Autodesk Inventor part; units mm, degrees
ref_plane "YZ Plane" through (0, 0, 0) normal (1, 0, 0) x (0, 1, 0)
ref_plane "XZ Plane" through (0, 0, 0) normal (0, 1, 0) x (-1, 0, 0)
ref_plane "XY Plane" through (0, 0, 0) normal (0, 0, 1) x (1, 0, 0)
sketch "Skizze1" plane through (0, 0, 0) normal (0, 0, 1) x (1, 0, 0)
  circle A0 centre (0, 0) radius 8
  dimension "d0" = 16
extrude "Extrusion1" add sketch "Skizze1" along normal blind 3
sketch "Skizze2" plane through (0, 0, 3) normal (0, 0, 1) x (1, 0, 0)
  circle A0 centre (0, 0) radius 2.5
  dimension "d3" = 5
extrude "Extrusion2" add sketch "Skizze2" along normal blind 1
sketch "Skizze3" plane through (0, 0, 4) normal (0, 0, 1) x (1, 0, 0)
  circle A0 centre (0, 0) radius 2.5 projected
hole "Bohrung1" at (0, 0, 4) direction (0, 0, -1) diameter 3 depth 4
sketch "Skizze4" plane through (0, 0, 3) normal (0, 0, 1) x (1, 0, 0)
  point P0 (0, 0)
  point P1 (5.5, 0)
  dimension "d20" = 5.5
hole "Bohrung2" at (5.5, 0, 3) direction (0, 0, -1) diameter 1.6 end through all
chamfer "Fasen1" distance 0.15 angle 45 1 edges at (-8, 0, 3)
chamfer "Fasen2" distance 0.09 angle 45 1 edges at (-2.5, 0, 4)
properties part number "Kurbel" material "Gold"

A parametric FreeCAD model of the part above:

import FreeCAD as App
import Part
import Sketcher

V = App.Vector
Q = App.Units.Quantity


def edges_at(feature, points):
    """Names of the edges that pass closest to the given points."""
    edges = feature.Shape.Edges
    near = lambda p: min(range(len(edges)), key=lambda i: edges[i].distToShape(Part.Vertex(*p))[0])
    return sorted({f"Edge{near(p) + 1}" for p in points})

doc = App.newDocument("Part")
body = doc.addObject("PartDesign::Body", "Body")

# Sketch on XY plane
sketch1 = body.newObject("Sketcher::SketchObject", "Sketch")
sketch1.AttachmentSupport = (doc.getObject("XY_Plane"), [""])
sketch1.MapMode = "FlatFace"
sketch1.addGeometry(Part.Circle(V(0, 0, 0), V(0, 0, 1), 8), False)
sketch1.addConstraint([
    Sketcher.Constraint("Coincident", 0, 3, -1, 1),
    Sketcher.Constraint("Diameter", 0, Q("16 mm")),
])
pad1 = body.newObject("PartDesign::Pad", "Pad")
pad1.Profile = sketch1
pad1.Length = 3

# Sketch on XY plane
sketch2 = body.newObject("Sketcher::SketchObject", "Sketch001")
sketch2.AttachmentSupport = (doc.getObject("XY_Plane"), [""])
sketch2.MapMode = "FlatFace"
sketch2.AttachmentOffset = App.Placement(V(0, 0, 3), App.Rotation())
sketch2.addGeometry(Part.Circle(V(0, 0, 0), V(0, 0, 1), 2.5), False)
sketch2.addConstraint([
    Sketcher.Constraint("Coincident", 0, 3, -1, 1),
    Sketcher.Constraint("Diameter", 0, Q("5 mm")),
])
pad2 = body.newObject("PartDesign::Pad", "Pad001")
pad2.Profile = sketch2
pad2.Length = 1

# Sketch on XY plane
sketch3 = body.newObject("Sketcher::SketchObject", "Sketch002")
sketch3.AttachmentSupport = (doc.getObject("XY_Plane"), [""])
sketch3.MapMode = "FlatFace"
sketch3.AttachmentOffset = App.Placement(V(0, 0, 4), App.Rotation())
sketch3.addGeometry(Part.Circle(V(0, 0, 0), V(0, 0, 1), 1.5), False)
sketch3.addConstraint([
    Sketcher.Constraint("Coincident", 0, 3, -1, 1),
    Sketcher.Constraint("Diameter", 0, Q("3 mm")),
])
doc.recompute()
hole = body.newObject("PartDesign::Hole", "Hole")
hole.Profile = sketch3
hole.ThreadType = "None"
hole.Diameter = 3
hole.DepthType = "Dimension"
hole.Depth = 4
hole.DrillPoint = "Flat"

# Sketch on XY plane
sketch4 = body.newObject("Sketcher::SketchObject", "Sketch003")
sketch4.AttachmentSupport = (doc.getObject("XY_Plane"), [""])
sketch4.MapMode = "FlatFace"
sketch4.AttachmentOffset = App.Placement(V(0, 0, 3), App.Rotation())
sketch4.addGeometry(Part.Circle(V(5.5, 0, 0), V(0, 0, 1), 0.8), False)
sketch4.addConstraint([
    Sketcher.Constraint("PointOnObject", 0, 3, -1),
    Sketcher.Constraint("Diameter", 0, Q("1.6 mm")),
    Sketcher.Constraint("DistanceX", -1, 1, 0, 3, Q("5.5 mm")),
])
doc.recompute()
hole2 = body.newObject("PartDesign::Hole", "Hole001")
hole2.Profile = sketch4
hole2.ThreadType = "None"
hole2.Diameter = 1.6
hole2.DepthType = "ThroughAll"
doc.recompute()

chamfer = body.newObject("PartDesign::Chamfer", "Chamfer")
chamfer.Base = (hole2, edges_at(hole2, [(-8, 0, 3)]))
chamfer.Size = 0.15
doc.recompute()

chamfer2 = body.newObject("PartDesign::Chamfer", "Chamfer001")
chamfer2.Base = (chamfer, edges_at(chamfer, [(-2.5, 0, 4)]))
chamfer2.Size = 0.09

doc.recompute()
